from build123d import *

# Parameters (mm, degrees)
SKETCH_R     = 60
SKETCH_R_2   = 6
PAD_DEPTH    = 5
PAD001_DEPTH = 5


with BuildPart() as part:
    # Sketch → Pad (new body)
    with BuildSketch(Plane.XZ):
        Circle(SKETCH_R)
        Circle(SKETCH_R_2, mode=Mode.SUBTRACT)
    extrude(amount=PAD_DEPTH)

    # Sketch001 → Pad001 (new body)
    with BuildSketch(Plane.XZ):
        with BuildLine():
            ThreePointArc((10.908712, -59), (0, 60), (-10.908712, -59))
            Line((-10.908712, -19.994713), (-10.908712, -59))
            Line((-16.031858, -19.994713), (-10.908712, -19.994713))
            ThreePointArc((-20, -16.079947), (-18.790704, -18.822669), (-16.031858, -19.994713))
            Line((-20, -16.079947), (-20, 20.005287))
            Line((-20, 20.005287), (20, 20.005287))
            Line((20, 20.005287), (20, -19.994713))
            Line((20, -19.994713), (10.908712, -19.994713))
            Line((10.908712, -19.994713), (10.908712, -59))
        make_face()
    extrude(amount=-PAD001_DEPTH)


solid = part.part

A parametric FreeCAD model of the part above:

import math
import FreeCAD as App
import Part
import Sketcher
Q = App.Units.Quantity

doc = App.newDocument("Part")
body = doc.addObject("PartDesign::Body", "Body")

# Sketch on XZ plane
sketch1 = body.newObject("Sketcher::SketchObject", "Sketch")
sketch1.AttachmentSupport = (doc.getObject("XZ_Plane"), [""])
sketch1.MapMode = "FlatFace"
sketch1.addGeometry(Part.Circle(App.Vector(0, 0, 0), App.Vector(0, 0, 1), 60), False)
sketch1.addGeometry(Part.Circle(App.Vector(0, 0, 0), App.Vector(0, 0, 1), 6), False)
sketch1.addConstraint(Sketcher.Constraint("Coincident", 0, 3, -1, 1))
sketch1.addConstraint(Sketcher.Constraint("Coincident", 1, 3, -1, 1))
sketch1.addConstraint(Sketcher.Constraint("Diameter", 0, Q("120 mm")))
sketch1.addConstraint(Sketcher.Constraint("Diameter", 1, Q("12 mm")))
pad1 = body.newObject("PartDesign::Pad", "Pad")
pad1.Profile = sketch1
pad1.Length = 5

# Sketch on XZ plane
sketch2 = body.newObject("Sketcher::SketchObject", "Sketch001")
sketch2.AttachmentSupport = (doc.getObject("XZ_Plane"), [""])
sketch2.MapMode = "FlatFace"
sketch2.addGeometry(Part.ArcOfCircle(Part.Circle(App.Vector(0, 0, 0), App.Vector(0, 0, 1), 60), math.radians(-80), math.radians(260)), False)
sketch2.addGeometry(Part.LineSegment(App.Vector(-10.9, -59, 0), App.Vector(-10.9, -20, 0)), False)
sketch2.addGeometry(Part.LineSegment(App.Vector(-10.9, -20, 0), App.Vector(-16, -20, 0)), False)
sketch2.addGeometry(Part.ArcOfCircle(Part.Circle(App.Vector(-15.9, -15.9, 0), App.Vector(0, 0, 1), 4.1), math.radians(-178), math.radians(-91)), False)
sketch2.addGeometry(Part.LineSegment(App.Vector(-20, -16.1, 0), App.Vector(-20, 20, 0)), False)
sketch2.addGeometry(Part.LineSegment(App.Vector(-20, 20, 0), App.Vector(20, 20, 0)), False)
sketch2.addGeometry(Part.LineSegment(App.Vector(20, 20, 0), App.Vector(20, -20, 0)), False)
sketch2.addGeometry(Part.LineSegment(App.Vector(20, -20, 0), App.Vector(10.9, -20, 0)), False)
sketch2.addGeometry(Part.LineSegment(App.Vector(10.9, -20, 0), App.Vector(10.9, -59, 0)), False)
sketch2.addConstraint(Sketcher.Constraint("Coincident", 0, 2, 1, 1))
sketch2.addConstraint(Sketcher.Constraint("Coincident", 1, 2, 2, 1))
sketch2.addConstraint(Sketcher.Constraint("Coincident", 2, 2, 3, 2))
sketch2.addConstraint(Sketcher.Constraint("Coincident", 3, 1, 4, 1))
sketch2.addConstraint(Sketcher.Constraint("Coincident", 4, 2, 5, 1))
sketch2.addConstraint(Sketcher.Constraint("Coincident", 5, 2, 6, 1))
sketch2.addConstraint(Sketcher.Constraint("Coincident", 6, 2, 7, 1))
sketch2.addConstraint(Sketcher.Constraint("Coincident", 7, 2, 8, 1))
sketch2.addConstraint(Sketcher.Constraint("Coincident", 8, 2, 0, 1))
sketch2.addConstraint(Sketcher.Constraint("Vertical", 1))
sketch2.addConstraint(Sketcher.Constraint("Horizontal", 2))
sketch2.addConstraint(Sketcher.Constraint("Vertical", 4))
sketch2.addConstraint(Sketcher.Constraint("Horizontal", 5))
sketch2.addConstraint(Sketcher.Constraint("Vertical", 6))
sketch2.addConstraint(Sketcher.Constraint("Horizontal", 7))
sketch2.addConstraint(Sketcher.Constraint("Vertical", 8))
sketch2.addConstraint(Sketcher.Constraint("Coincident", 0, 3, -1, 1))
sketch2.addConstraint(Sketcher.Constraint("Symmetric", 1, 2, 7, 2, -2))
sketch2.addConstraint(Sketcher.Constraint("Equal", 5, 6))
sketch2.addConstraint(Sketcher.Constraint("Radius", 0, Q("60 mm")))
sketch2.addConstraint(Sketcher.Constraint("DistanceX", 5, 1, 5, 2, Q("40 mm")))
sketch2.addConstraint(Sketcher.Constraint("DistanceY", 0, 2, -1, 1, Q("59 mm")))
sketch2.addConstraint(Sketcher.Constraint("DistanceX", 3, 1, -1, 1, Q("20 mm")))
sketch2.addConstraint(Sketcher.Constraint("Radius", 3, Q("4.072236 mm")))
sketch2.addConstraint(Sketcher.Constraint("DistanceX", 2, 2, 2, 1, Q("5.123146 mm")))
sketch2.addConstraint(Sketcher.Constraint("DistanceY", 1, 1, 1, 2, Q("39.005287 mm")))
sketch2.addConstraint(Sketcher.Constraint("DistanceY", 4, 1, 4, 2, Q("36.085234 mm")))
pad2 = body.newObject("PartDesign::Pad", "Pad001")
pad2.Profile = sketch2
pad2.Length = 5
pad2.Reversed = True

doc.recompute()
